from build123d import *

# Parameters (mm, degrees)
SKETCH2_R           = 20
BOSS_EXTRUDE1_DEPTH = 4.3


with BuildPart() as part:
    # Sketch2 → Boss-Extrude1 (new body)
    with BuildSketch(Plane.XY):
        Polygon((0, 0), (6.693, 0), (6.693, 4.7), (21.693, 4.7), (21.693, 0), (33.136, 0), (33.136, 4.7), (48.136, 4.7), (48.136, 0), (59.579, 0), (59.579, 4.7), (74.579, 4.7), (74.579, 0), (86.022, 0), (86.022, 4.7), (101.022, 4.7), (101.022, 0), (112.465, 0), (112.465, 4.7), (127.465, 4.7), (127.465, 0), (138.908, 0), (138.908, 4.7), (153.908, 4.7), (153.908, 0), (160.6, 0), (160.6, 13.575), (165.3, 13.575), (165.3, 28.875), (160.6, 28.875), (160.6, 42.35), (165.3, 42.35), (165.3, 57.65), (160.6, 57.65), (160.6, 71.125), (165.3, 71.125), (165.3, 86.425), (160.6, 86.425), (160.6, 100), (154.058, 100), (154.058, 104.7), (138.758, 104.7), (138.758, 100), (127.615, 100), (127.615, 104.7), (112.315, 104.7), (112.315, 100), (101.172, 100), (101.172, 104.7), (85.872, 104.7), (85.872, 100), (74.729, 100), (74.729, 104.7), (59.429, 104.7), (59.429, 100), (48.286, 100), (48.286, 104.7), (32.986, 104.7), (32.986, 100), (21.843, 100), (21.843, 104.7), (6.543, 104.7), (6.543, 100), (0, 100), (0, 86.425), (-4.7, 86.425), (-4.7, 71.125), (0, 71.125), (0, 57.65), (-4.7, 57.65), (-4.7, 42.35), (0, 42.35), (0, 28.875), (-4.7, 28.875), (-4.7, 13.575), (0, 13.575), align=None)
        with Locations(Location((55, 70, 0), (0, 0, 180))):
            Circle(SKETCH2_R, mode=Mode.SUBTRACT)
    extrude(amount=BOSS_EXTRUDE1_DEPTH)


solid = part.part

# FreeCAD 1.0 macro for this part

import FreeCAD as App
import Part
import Sketcher

doc = App.newDocument("Part")
body = doc.addObject("PartDesign::Body", "Body")

sketch1 = doc.addObject("Sketcher::SketchObject", "Sketch")
body.addObject(sketch1)
sketch1.AttachmentSupport = (doc.XY_Plane, [""])
sketch1.MapMode = "FlatFace"
sketch1.addGeometry([
    Part.LineSegment(App.Vector(0, 0, 0), App.Vector(6.7, 0, 0)),
    Part.LineSegment(App.Vector(6.7, 0, 0), App.Vector(6.7, 4.7, 0)),
    Part.LineSegment(App.Vector(6.7, 4.7, 0), App.Vector(21.7, 4.7, 0)),
    Part.LineSegment(App.Vector(21.7, 4.7, 0), App.Vector(21.7, 0, 0)),
    Part.LineSegment(App.Vector(21.7, 0, 0), App.Vector(33.1, 0, 0)),
    Part.LineSegment(App.Vector(33.1, 0, 0), App.Vector(33.1, 4.7, 0)),
    Part.LineSegment(App.Vector(33.1, 4.7, 0), App.Vector(48.1, 4.7, 0)),
    Part.LineSegment(App.Vector(48.1, 4.7, 0), App.Vector(48.1, 0, 0)),
    Part.LineSegment(App.Vector(48.1, 0, 0), App.Vector(59.6, 0, 0)),
    Part.LineSegment(App.Vector(59.6, 0, 0), App.Vector(59.6, 4.7, 0)),
    Part.LineSegment(App.Vector(59.6, 4.7, 0), App.Vector(74.6, 4.7, 0)),
    Part.LineSegment(App.Vector(74.6, 4.7, 0), App.Vector(74.6, 0, 0)),
    Part.LineSegment(App.Vector(74.6, 0, 0), App.Vector(86, 0, 0)),
    Part.LineSegment(App.Vector(86, 0, 0), App.Vector(86, 4.7, 0)),
    Part.LineSegment(App.Vector(86, 4.7, 0), App.Vector(101, 4.7, 0)),
    Part.LineSegment(App.Vector(101, 4.7, 0), App.Vector(101, 0, 0)),
    Part.LineSegment(App.Vector(101, 0, 0), App.Vector(112.5, 0, 0)),
    Part.LineSegment(App.Vector(112.5, 0, 0), App.Vector(112.5, 4.7, 0)),
    Part.LineSegment(App.Vector(112.5, 4.7, 0), App.Vector(127.5, 4.7, 0)),
    Part.LineSegment(App.Vector(127.5, 4.7, 0), App.Vector(127.5, 0, 0)),
    Part.LineSegment(App.Vector(127.5, 0, 0), App.Vector(138.9, 0, 0)),
    Part.LineSegment(App.Vector(138.9, 0, 0), App.Vector(138.9, 4.7, 0)),
    Part.LineSegment(App.Vector(138.9, 4.7, 0), App.Vector(153.9, 4.7, 0)),
    Part.LineSegment(App.Vector(153.9, 4.7, 0), App.Vector(153.9, 0, 0)),
    Part.LineSegment(App.Vector(153.9, 0, 0), App.Vector(160.6, 0, 0)),
    Part.LineSegment(App.Vector(160.6, 0, 0), App.Vector(160.6, 13.6, 0)),
    Part.LineSegment(App.Vector(160.6, 13.6, 0), App.Vector(165.3, 13.6, 0)),
    Part.LineSegment(App.Vector(165.3, 13.6, 0), App.Vector(165.3, 28.9, 0)),
    Part.LineSegment(App.Vector(165.3, 28.9, 0), App.Vector(160.6, 28.9, 0)),
    Part.LineSegment(App.Vector(160.6, 28.9, 0), App.Vector(160.6, 42.4, 0)),
    Part.LineSegment(App.Vector(160.6, 42.4, 0), App.Vector(165.3, 42.4, 0)),
    Part.LineSegment(App.Vector(165.3, 42.4, 0), App.Vector(165.3, 57.6, 0)),
    Part.LineSegment(App.Vector(165.3, 57.6, 0), App.Vector(160.6, 57.6, 0)),
    Part.LineSegment(App.Vector(160.6, 57.6, 0), App.Vector(160.6, 71.1, 0)),
    Part.LineSegment(App.Vector(160.6, 71.1, 0), App.Vector(165.3, 71.1, 0)),
    Part.LineSegment(App.Vector(165.3, 71.1, 0), App.Vector(165.3, 86.4, 0)),
    Part.LineSegment(App.Vector(165.3, 86.4, 0), App.Vector(160.6, 86.4, 0)),
    Part.LineSegment(App.Vector(160.6, 86.4, 0), App.Vector(160.6, 100, 0)),
    Part.LineSegment(App.Vector(160.6, 100, 0), App.Vector(154.1, 100, 0)),
    Part.LineSegment(App.Vector(154.1, 100, 0), App.Vector(154.1, 104.7, 0)),
    Part.LineSegment(App.Vector(154.1, 104.7, 0), App.Vector(138.8, 104.7, 0)),
    Part.LineSegment(App.Vector(138.8, 104.7, 0), App.Vector(138.8, 100, 0)),
    Part.LineSegment(App.Vector(138.8, 100, 0), App.Vector(127.6, 100, 0)),
    Part.LineSegment(App.Vector(127.6, 100, 0), App.Vector(127.6, 104.7, 0)),
    Part.LineSegment(App.Vector(127.6, 104.7, 0), App.Vector(112.3, 104.7, 0)),
    Part.LineSegment(App.Vector(112.3, 104.7, 0), App.Vector(112.3, 100, 0)),
    Part.LineSegment(App.Vector(112.3, 100, 0), App.Vector(101.2, 100, 0)),
    Part.LineSegment(App.Vector(101.2, 100, 0), App.Vector(101.2, 104.7, 0)),
    Part.LineSegment(App.Vector(101.2, 104.7, 0), App.Vector(85.9, 104.7, 0)),
    Part.LineSegment(App.Vector(85.9, 104.7, 0), App.Vector(85.9, 100, 0)),
    Part.LineSegment(App.Vector(85.9, 100, 0), App.Vector(74.7, 100, 0)),
    Part.LineSegment(App.Vector(74.7, 100, 0), App.Vector(74.7, 104.7, 0)),
    Part.LineSegment(App.Vector(74.7, 104.7, 0), App.Vector(59.4, 104.7, 0)),
    Part.LineSegment(App.Vector(59.4, 104.7, 0), App.Vector(59.4, 100, 0)),
    Part.LineSegment(App.Vector(59.4, 100, 0), App.Vector(48.3, 100, 0)),
    Part.LineSegment(App.Vector(48.3, 100, 0), App.Vector(48.3, 104.7, 0)),
    Part.LineSegment(App.Vector(48.3, 104.7, 0), App.Vector(33, 104.7, 0)),
    Part.LineSegment(App.Vector(33, 104.7, 0), App.Vector(33, 100, 0)),
    Part.LineSegment(App.Vector(33, 100, 0), App.Vector(21.8, 100, 0)),
    Part.LineSegment(App.Vector(21.8, 100, 0), App.Vector(21.8, 104.7, 0)),
    Part.LineSegment(App.Vector(21.8, 104.7, 0), App.Vector(6.5, 104.7, 0)),
    Part.LineSegment(App.Vector(6.5, 104.7, 0), App.Vector(6.5, 100, 0)),
    Part.LineSegment(App.Vector(6.5, 100, 0), App.Vector(0, 100, 0)),
    Part.LineSegment(App.Vector(0, 100, 0), App.Vector(0, 86.4, 0)),
    Part.LineSegment(App.Vector(0, 86.4, 0), App.Vector(-4.7, 86.4, 0)),
    Part.LineSegment(App.Vector(-4.7, 86.4, 0), App.Vector(-4.7, 71.1, 0)),
    Part.LineSegment(App.Vector(-4.7, 71.1, 0), App.Vector(0, 71.1, 0)),
    Part.LineSegment(App.Vector(0, 71.1, 0), App.Vector(0, 57.6, 0)),
    Part.LineSegment(App.Vector(0, 57.6, 0), App.Vector(-4.7, 57.6, 0)),
    Part.LineSegment(App.Vector(-4.7, 57.6, 0), App.Vector(-4.7, 42.4, 0)),
    Part.LineSegment(App.Vector(-4.7, 42.4, 0), App.Vector(0, 42.4, 0)),
    Part.LineSegment(App.Vector(0, 42.4, 0), App.Vector(0, 28.9, 0)),
    Part.LineSegment(App.Vector(0, 28.9, 0), App.Vector(-4.7, 28.9, 0)),
    Part.LineSegment(App.Vector(-4.7, 28.9, 0), App.Vector(-4.7, 13.6, 0)),
    Part.LineSegment(App.Vector(-4.7, 13.6, 0), App.Vector(0, 13.6, 0)),
    Part.LineSegment(App.Vector(0, 13.6, 0), App.Vector(0, 0, 0)),
    Part.Circle(App.Vector(55, 70, 0), App.Vector(0, 0, 1), 20),
], False)
sketch1.addConstraint([
    Sketcher.Constraint("Coincident", 0, 2, 1, 1),
    Sketcher.Constraint("Coincident", 1, 2, 2, 1),
    Sketcher.Constraint("Coincident", 2, 2, 3, 1),
    Sketcher.Constraint("Coincident", 3, 2, 4, 1),
    Sketcher.Constraint("Coincident", 4, 2, 5, 1),
    Sketcher.Constraint("Coincident", 5, 2, 6, 1),
    Sketcher.Constraint("Coincident", 6, 2, 7, 1),
    Sketcher.Constraint("Coincident", 7, 2, 8, 1),
    Sketcher.Constraint("Coincident", 8, 2, 9, 1),
    Sketcher.Constraint("Coincident", 9, 2, 10, 1),
    Sketcher.Constraint("Coincident", 10, 2, 11, 1),
    Sketcher.Constraint("Coincident", 11, 2, 12, 1),
    Sketcher.Constraint("Coincident", 12, 2, 13, 1),
    Sketcher.Constraint("Coincident", 13, 2, 14, 1),
    Sketcher.Constraint("Coincident", 14, 2, 15, 1),
    Sketcher.Constraint("Coincident", 15, 2, 16, 1),
    Sketcher.Constraint("Coincident", 16, 2, 17, 1),
    Sketcher.Constraint("Coincident", 17, 2, 18, 1),
    Sketcher.Constraint("Coincident", 18, 2, 19, 1),
    Sketcher.Constraint("Coincident", 19, 2, 20, 1),
    Sketcher.Constraint("Coincident", 20, 2, 21, 1),
    Sketcher.Constraint("Coincident", 21, 2, 22, 1),
    Sketcher.Constraint("Coincident", 22, 2, 23, 1),
    Sketcher.Constraint("Coincident", 23, 2, 24, 1),
    Sketcher.Constraint("Coincident", 24, 2, 25, 1),
    Sketcher.Constraint("Coincident", 25, 2, 26, 1),
    Sketcher.Constraint("Coincident", 26, 2, 27, 1),
    Sketcher.Constraint("Coincident", 27, 2, 28, 1),
    Sketcher.Constraint("Coincident", 28, 2, 29, 1),
    Sketcher.Constraint("Coincident", 29, 2, 30, 1),
    Sketcher.Constraint("Coincident", 30, 2, 31, 1),
    Sketcher.Constraint("Coincident", 31, 2, 32, 1),
    Sketcher.Constraint("Coincident", 32, 2, 33, 1),
    Sketcher.Constraint("Coincident", 33, 2, 34, 1),
    Sketcher.Constraint("Coincident", 34, 2, 35, 1),
    Sketcher.Constraint("Coincident", 35, 2, 36, 1),
    Sketcher.Constraint("Coincident", 36, 2, 37, 1),
    Sketcher.Constraint("Coincident", 37, 2, 38, 1),
    Sketcher.Constraint("Coincident", 38, 2, 39, 1),
    Sketcher.Constraint("Coincident", 39, 2, 40, 1),
    Sketcher.Constraint("Coincident", 40, 2, 41, 1),
    Sketcher.Constraint("Coincident", 41, 2, 42, 1),
    Sketcher.Constraint("Coincident", 42, 2, 43, 1),
    Sketcher.Constraint("Coincident", 43, 2, 44, 1),
    Sketcher.Constraint("Coincident", 44, 2, 45, 1),
    Sketcher.Constraint("Coincident", 45, 2, 46, 1),
    Sketcher.Constraint("Coincident", 46, 2, 47, 1),
    Sketcher.Constraint("Coincident", 47, 2, 48, 1),
    Sketcher.Constraint("Coincident", 48, 2, 49, 1),
    Sketcher.Constraint("Coincident", 49, 2, 50, 1),
    Sketcher.Constraint("Coincident", 50, 2, 51, 1),
    Sketcher.Constraint("Coincident", 51, 2, 52, 1),
    Sketcher.Constraint("Coincident", 52, 2, 53, 1),
    Sketcher.Constraint("Coincident", 53, 2, 54, 1),
    Sketcher.Constraint("Coincident", 54, 2, 55, 1),
    Sketcher.Constraint("Coincident", 55, 2, 56, 1),
    Sketcher.Constraint("Coincident", 56, 2, 57, 1),
    Sketcher.Constraint("Coincident", 57, 2, 58, 1),
    Sketcher.Constraint("Coincident", 58, 2, 59, 1),
    Sketcher.Constraint("Coincident", 59, 2, 60, 1),
    Sketcher.Constraint("Coincident", 60, 2, 61, 1),
    Sketcher.Constraint("Coincident", 61, 2, 62, 1),
    Sketcher.Constraint("Coincident", 62, 2, 63, 1),
    Sketcher.Constraint("Coincident", 63, 2, 64, 1),
    Sketcher.Constraint("Coincident", 64, 2, 65, 1),
    Sketcher.Constraint("Coincident", 65, 2, 66, 1),
    Sketcher.Constraint("Coincident", 66, 2, 67, 1),
    Sketcher.Constraint("Coincident", 67, 2, 68, 1),
    Sketcher.Constraint("Coincident", 68, 2, 69, 1),
    Sketcher.Constraint("Coincident", 69, 2, 70, 1),
    Sketcher.Constraint("Coincident", 70, 2, 71, 1),
    Sketcher.Constraint("Coincident", 71, 2, 72, 1),
    Sketcher.Constraint("Coincident", 72, 2, 73, 1),
    Sketcher.Constraint("Coincident", 73, 2, 74, 1),
    Sketcher.Constraint("Coincident", 74, 2, 75, 1),
    Sketcher.Constraint("Coincident", 75, 2, 0, 1),
    Sketcher.Constraint("Horizontal", 0),
    Sketcher.Constraint("Vertical", 1),
    Sketcher.Constraint("Horizontal", 2),
    Sketcher.Constraint("Vertical", 3),
    Sketcher.Constraint("Horizontal", 4),
    Sketcher.Constraint("Vertical", 5),
    Sketcher.Constraint("Horizontal", 6),
    Sketcher.Constraint("Vertical", 7),
    Sketcher.Constraint("Horizontal", 8),
    Sketcher.Constraint("Vertical", 9),
    Sketcher.Constraint("Horizontal", 10),
    Sketcher.Constraint("Vertical", 11),
    Sketcher.Constraint("Horizontal", 12),
    Sketcher.Constraint("Vertical", 13),
    Sketcher.Constraint("Horizontal", 14),
    Sketcher.Constraint("Vertical", 15),
    Sketcher.Constraint("Horizontal", 16),
    Sketcher.Constraint("Vertical", 17),
    Sketcher.Constraint("Horizontal", 18),
    Sketcher.Constraint("Vertical", 19),
    Sketcher.Constraint("Horizontal", 20),
    Sketcher.Constraint("Vertical", 21),
    Sketcher.Constraint("Horizontal", 22),
    Sketcher.Constraint("Vertical", 23),
    Sketcher.Constraint("Horizontal", 24),
    Sketcher.Constraint("Vertical", 25),
    Sketcher.Constraint("Horizontal", 26),
    Sketcher.Constraint("Vertical", 27),
    Sketcher.Constraint("Horizontal", 28),
    Sketcher.Constraint("Vertical", 29),
    Sketcher.Constraint("Horizontal", 30),
    Sketcher.Constraint("Vertical", 31),
    Sketcher.Constraint("Horizontal", 32),
    Sketcher.Constraint("Vertical", 33),
    Sketcher.Constraint("Horizontal", 34),
    Sketcher.Constraint("Vertical", 35),
    Sketcher.Constraint("Horizontal", 36),
    Sketcher.Constraint("Vertical", 37),
    Sketcher.Constraint("Horizontal", 38),
    Sketcher.Constraint("Vertical", 39),
    Sketcher.Constraint("Horizontal", 40),
    Sketcher.Constraint("Vertical", 41),
    Sketcher.Constraint("Horizontal", 42),
    Sketcher.Constraint("Vertical", 43),
    Sketcher.Constraint("Horizontal", 44),
    Sketcher.Constraint("Vertical", 45),
    Sketcher.Constraint("Horizontal", 46),
    Sketcher.Constraint("Vertical", 47),
    Sketcher.Constraint("Horizontal", 48),
    Sketcher.Constraint("Vertical", 49),
    Sketcher.Constraint("Horizontal", 50),
    Sketcher.Constraint("Vertical", 51),
    Sketcher.Constraint("Horizontal", 52),
    Sketcher.Constraint("Vertical", 53),
    Sketcher.Constraint("Horizontal", 54),
    Sketcher.Constraint("Vertical", 55),
    Sketcher.Constraint("Horizontal", 56),
    Sketcher.Constraint("Vertical", 57),
    Sketcher.Constraint("Horizontal", 58),
    Sketcher.Constraint("Vertical", 59),
    Sketcher.Constraint("Horizontal", 60),
    Sketcher.Constraint("Vertical", 61),
    Sketcher.Constraint("Horizontal", 62),
    Sketcher.Constraint("Vertical", 63),
    Sketcher.Constraint("Horizontal", 64),
    Sketcher.Constraint("Vertical", 65),
    Sketcher.Constraint("Horizontal", 66),
    Sketcher.Constraint("Vertical", 67),
    Sketcher.Constraint("Horizontal", 68),
    Sketcher.Constraint("Vertical", 69),
    Sketcher.Constraint("Horizontal", 70),
    Sketcher.Constraint("Vertical", 71),
    Sketcher.Constraint("Horizontal", 72),
    Sketcher.Constraint("Vertical", 73),
    Sketcher.Constraint("Horizontal", 74),
    Sketcher.Constraint("Vertical", 75),
    Sketcher.Constraint("Coincident", 75, 2, -1, 1),
    Sketcher.Constraint("PointOnObject", 3, 2, -1),
    Sketcher.Constraint("PointOnObject", 7, 2, -1),
    Sketcher.Constraint("PointOnObject", 11, 2, -1),
    Sketcher.Constraint("PointOnObject", 15, 2, -1),
    Sketcher.Constraint("PointOnObject", 19, 2, -1),
    Sketcher.Constraint("PointOnObject", 23, 2, -1),
    Sketcher.Constraint("PointOnObject", 62, 2, -2),
    Sketcher.Constraint("PointOnObject", 66, 2, -2),
    Sketcher.Constraint("PointOnObject", 70, 2, -2),
    Sketcher.Constraint("Horizontal", 2, 2, 5, 2),
    Sketcher.Constraint("Horizontal", 6, 2, 9, 2),
    Sketcher.Constraint("Horizontal", 10, 2, 13, 2),
    Sketcher.Constraint("Horizontal", 14, 2, 17, 2),
    Sketcher.Constraint("Horizontal", 18, 2, 21, 2),
    Sketcher.Constraint("Horizontal", 38, 2, 41, 2),
    Sketcher.Constraint("Horizontal", 40, 2, 43, 2),
    Sketcher.Constraint("Horizontal", 42, 2, 45, 2),
    Sketcher.Constraint("Horizontal", 44, 2, 47, 2),
    Sketcher.Constraint("Horizontal", 46, 2, 49, 2),
    Sketcher.Constraint("Horizontal", 48, 2, 51, 2),
    Sketcher.Constraint("Horizontal", 50, 2, 53, 2),
    Sketcher.Constraint("Horizontal", 52, 2, 55, 2),
    Sketcher.Constraint("Horizontal", 54, 2, 57, 2),
    Sketcher.Constraint("Horizontal", 56, 2, 59, 2),
    Sketcher.Constraint("Horizontal", 58, 2, 61, 2),
    Sketcher.Constraint("Horizontal", 36, 2, 63, 2),
    Sketcher.Constraint("Horizontal", 34, 2, 65, 2),
    Sketcher.Constraint("Horizontal", 32, 2, 67, 2),
    Sketcher.Constraint("Horizontal", 30, 2, 69, 2),
    Sketcher.Constraint("Horizontal", 28, 2, 71, 2),
    Sketcher.Constraint("Horizontal", 26, 2, 73, 2),
    Sketcher.Constraint("Vertical", 25, 2, 28, 2),
    Sketcher.Constraint("Vertical", 27, 2, 30, 2),
    Sketcher.Constraint("Vertical", 29, 2, 32, 2),
    Sketcher.Constraint("Vertical", 31, 2, 34, 2),
    Sketcher.Constraint("Vertical", 33, 2, 36, 2),
    Sketcher.Constraint("Vertical", 65, 2, 68, 2),
    Sketcher.Constraint("Vertical", 69, 2, 72, 2),
    Sketcher.Constraint("Equal", 2, 6),
    Sketcher.Constraint("Equal", 4, 8),
    Sketcher.Constraint("Equal", 6, 10),
    Sketcher.Constraint("Equal", 8, 12),
    Sketcher.Constraint("Equal", 10, 14),
    Sketcher.Constraint("Equal", 12, 16),
    Sketcher.Constraint("Equal", 14, 18),
    Sketcher.Constraint("Equal", 16, 20),
    Sketcher.Constraint("Equal", 18, 22),
    Sketcher.Constraint("Equal", 40, 44),
    Sketcher.Constraint("Equal", 42, 46),
    Sketcher.Constraint("Equal", 44, 48),
    Sketcher.Constraint("Equal", 46, 50),
    Sketcher.Constraint("Equal", 48, 52),
    Sketcher.Constraint("Equal", 50, 54),
    Sketcher.Constraint("Equal", 52, 56),
    Sketcher.Constraint("Equal", 54, 58),
    Sketcher.Constraint("Equal", 56, 60),
    Sketcher.Constraint("Equal", 36, 64),
    Sketcher.Constraint("Equal", 74, 1),
    Sketcher.Constraint("Equal", 60, 27),
    Sketcher.Constraint("Equal", 27, 31),
    Sketcher.Constraint("Equal", 29, 33),
    Sketcher.Constraint("Equal", 31, 35),
    Sketcher.Constraint("Equal", 25, 37),
    Sketcher.Constraint("Equal", 23, 39),
    Sketcher.Constraint("Diameter", 76, 40.0),
    Sketcher.Constraint("DistanceX", 2, 1, 2, 2, 15.0),
    Sketcher.Constraint("DistanceX", 26, 1, 26, 2, 4.7),
    Sketcher.Constraint("DistanceX", 40, 2, 40, 1, 15.3),
    Sketcher.Constraint("DistanceX", -1, 1, 76, 3, 55.0),
    Sketcher.Constraint("DistanceY", -1, 1, 76, 3, 70.0),
    Sketcher.Constraint("DistanceY", -1, 1, 37, 2, 100.0),
    Sketcher.Constraint("DistanceX", -1, 1, 24, 2, 160.6),
    Sketcher.Constraint("DistanceX", 0, 1, 0, 2, 6.693),
    Sketcher.Constraint("DistanceX", 4, 1, 4, 2, 11.443),
    Sketcher.Constraint("DistanceX", 38, 2, 38, 1, 6.542),
    Sketcher.Constraint("DistanceX", 42, 2, 42, 1, 11.143),
    Sketcher.Constraint("DistanceY", 25, 1, 25, 2, 13.575),
])
pad1 = doc.addObject("PartDesign::Pad", "Pad")
body.addObject(pad1)
pad1.Profile = sketch1
pad1.Length = 4.3

doc.recompute()
